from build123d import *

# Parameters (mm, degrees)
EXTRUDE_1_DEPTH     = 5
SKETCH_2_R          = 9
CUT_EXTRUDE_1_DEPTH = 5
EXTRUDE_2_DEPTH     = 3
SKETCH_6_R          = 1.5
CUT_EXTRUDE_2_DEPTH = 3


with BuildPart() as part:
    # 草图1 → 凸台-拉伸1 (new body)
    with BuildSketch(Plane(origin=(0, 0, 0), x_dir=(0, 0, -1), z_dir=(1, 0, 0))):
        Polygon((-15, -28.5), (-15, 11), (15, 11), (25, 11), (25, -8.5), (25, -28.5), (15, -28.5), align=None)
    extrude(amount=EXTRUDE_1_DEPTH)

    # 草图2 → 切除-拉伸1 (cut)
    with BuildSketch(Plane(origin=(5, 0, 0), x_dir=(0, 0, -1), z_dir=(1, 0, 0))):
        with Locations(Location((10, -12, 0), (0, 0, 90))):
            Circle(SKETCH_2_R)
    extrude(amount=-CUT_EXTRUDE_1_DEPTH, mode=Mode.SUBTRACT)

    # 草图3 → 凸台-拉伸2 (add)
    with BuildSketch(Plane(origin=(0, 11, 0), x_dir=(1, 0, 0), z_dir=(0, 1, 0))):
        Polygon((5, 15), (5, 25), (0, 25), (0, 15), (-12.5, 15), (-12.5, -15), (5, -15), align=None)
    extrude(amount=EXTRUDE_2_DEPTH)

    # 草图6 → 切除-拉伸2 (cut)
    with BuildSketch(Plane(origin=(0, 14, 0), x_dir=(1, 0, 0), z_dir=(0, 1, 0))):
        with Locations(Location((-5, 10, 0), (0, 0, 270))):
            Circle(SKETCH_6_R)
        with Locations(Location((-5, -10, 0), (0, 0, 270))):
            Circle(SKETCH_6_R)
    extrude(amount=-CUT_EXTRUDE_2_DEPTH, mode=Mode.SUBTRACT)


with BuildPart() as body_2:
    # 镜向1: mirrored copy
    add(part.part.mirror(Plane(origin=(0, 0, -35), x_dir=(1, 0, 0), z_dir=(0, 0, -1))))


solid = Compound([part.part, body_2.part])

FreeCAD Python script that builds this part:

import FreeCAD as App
import Part
import Sketcher
from FreeCAD import Vector

doc = App.newDocument("Part")
body = doc.addObject("PartDesign::Body", "Body")

sketch1 = body.newObject("Sketcher::SketchObject", "Sketch")
sketch1.AttachmentSupport = (doc.getObject("YZ_Plane"), [""])
sketch1.MapMode = "FlatFace"
sketch1.addGeometry([
    Part.LineSegment(Vector(11, 15, 0), Vector(-28, 15, 0)),
    Part.LineSegment(Vector(-28, 15, 0), Vector(-28, -25, 0)),
    Part.LineSegment(Vector(-28, -25, 0), Vector(11, -25, 0)),
    Part.LineSegment(Vector(11, -25, 0), Vector(11, 15, 0)),
], False)
sketch1.addConstraint([
    Sketcher.Constraint("Coincident", 0, 2, 1, 1),
    Sketcher.Constraint("Coincident", 1, 2, 2, 1),
    Sketcher.Constraint("Coincident", 2, 2, 3, 1),
    Sketcher.Constraint("Coincident", 3, 2, 0, 1),
    Sketcher.Constraint("Horizontal", 0),
    Sketcher.Constraint("Vertical", 1),
    Sketcher.Constraint("Horizontal", 2),
    Sketcher.Constraint("Vertical", 3),
    Sketcher.Constraint("DistanceY", 1, 2, 1, 1, 40.0),
    Sketcher.Constraint("DistanceX", 0, 2, 0, 1, 39.5),
    Sketcher.Constraint("DistanceY", -1, 1, 0, 2, 15.0),
    Sketcher.Constraint("DistanceX", -1, 1, 2, 2, 11.0),
])
pad1 = body.newObject("PartDesign::Pad", "Pad")
pad1.Profile = sketch1
pad1.Length = 5

sketch2 = body.newObject("Sketcher::SketchObject", "Sketch001")
sketch2.AttachmentSupport = (doc.getObject("YZ_Plane"), [""])
sketch2.MapMode = "FlatFace"
sketch2.AttachmentOffset = App.Placement(Vector(0, 0, 5), App.Rotation())
sketch2.addGeometry(Part.Circle(Vector(-12, -10, 0), Vector(0, 0, 1), 9), False)
sketch2.addConstraint([
    Sketcher.Constraint("Diameter", 0, 18.0),
    Sketcher.Constraint("DistanceX", 0, 3, -1, 1, 12.0),
    Sketcher.Constraint("DistanceY", 0, 3, -1, 1, 10.0),
])
pocket1 = body.newObject("PartDesign::Pocket", "Pocket")
pocket1.Profile = sketch2
pocket1.Length = 5

sketch3 = body.newObject("Sketcher::SketchObject", "Sketch002")
sketch3.AttachmentSupport = (doc.getObject("XZ_Plane"), [""])
sketch3.MapMode = "FlatFace"
sketch3.AttachmentOffset = App.Placement(Vector(0, 0, -11), App.Rotation())
sketch3.addGeometry([
    Part.LineSegment(Vector(5, -25, 0), Vector(0, -25, 0)),
    Part.LineSegment(Vector(0, -25, 0), Vector(0, -15, 0)),
    Part.LineSegment(Vector(0, -15, 0), Vector(-12, -15, 0)),
    Part.LineSegment(Vector(-12, -15, 0), Vector(-12, 15, 0)),
    Part.LineSegment(Vector(-12, 15, 0), Vector(5, 15, 0)),
    Part.LineSegment(Vector(5, 15, 0), Vector(5, -25, 0)),
], False)
sketch3.addConstraint([
    Sketcher.Constraint("Coincident", 0, 2, 1, 1),
    Sketcher.Constraint("Coincident", 1, 2, 2, 1),
    Sketcher.Constraint("Coincident", 2, 2, 3, 1),
    Sketcher.Constraint("Coincident", 3, 2, 4, 1),
    Sketcher.Constraint("Coincident", 4, 2, 5, 1),
    Sketcher.Constraint("Coincident", 5, 2, 0, 1),
    Sketcher.Constraint("Horizontal", 0),
    Sketcher.Constraint("Vertical", 1),
    Sketcher.Constraint("Horizontal", 2),
    Sketcher.Constraint("Vertical", 3),
    Sketcher.Constraint("Horizontal", 4),
    Sketcher.Constraint("Vertical", 5),
    Sketcher.Constraint("PointOnObject", 0, 2, -2),
    Sketcher.Constraint("DistanceX", 0, 2, 0, 1, 5.0),
    Sketcher.Constraint("DistanceY", 1, 1, 1, 2, 10.0),
    Sketcher.Constraint("DistanceY", 3, 1, 3, 2, 30.0),
    Sketcher.Constraint("DistanceX", 2, 2, 2, 1, 12.5),
    Sketcher.Constraint("DistanceY", 0, 2, -1, 1, 25.0),
])
pad2 = body.newObject("PartDesign::Pad", "Pad001")
pad2.Profile = sketch3
pad2.Length = 3
pad2.Reversed = True

sketch4 = body.newObject("Sketcher::SketchObject", "Sketch003")
sketch4.AttachmentSupport = (doc.getObject("XZ_Plane"), [""])
sketch4.MapMode = "FlatFace"
sketch4.AttachmentOffset = App.Placement(Vector(0, 0, -14), App.Rotation())
sketch4.addGeometry([
    Part.Circle(Vector(-5, -10, 0), Vector(0, 0, 1), 1.5),
    Part.Circle(Vector(-5, 10, 0), Vector(0, 0, 1), 1.5),
], False)
sketch4.addConstraint([
    Sketcher.Constraint("Equal", 0, 1),
    Sketcher.Constraint("Symmetric", 0, 3, 1, 3, -1),
    Sketcher.Constraint("Diameter", 0, 3.0),
    Sketcher.Constraint("DistanceX", 0, 3, -1, 1, 5.0),
    Sketcher.Constraint("DistanceY", 0, 3, -1, 1, 10.0),
])
pocket2 = body.newObject("PartDesign::Pocket", "Pocket001")
pocket2.Profile = sketch4
pocket2.Length = 3
pocket2.Reversed = True
body2 = doc.addObject("PartDesign::Body", "Body001")
doc.recompute()

mirroring = doc.addObject("Part::Mirroring", "Mirroring")
mirroring.Source = body
mirroring.Base = Vector(0, 0, -35)
mirroring.Normal = Vector(0, 0, -1)
body2.BaseFeature = mirroring
doc.recompute()
mirroring.Visibility = False

doc.recompute()
